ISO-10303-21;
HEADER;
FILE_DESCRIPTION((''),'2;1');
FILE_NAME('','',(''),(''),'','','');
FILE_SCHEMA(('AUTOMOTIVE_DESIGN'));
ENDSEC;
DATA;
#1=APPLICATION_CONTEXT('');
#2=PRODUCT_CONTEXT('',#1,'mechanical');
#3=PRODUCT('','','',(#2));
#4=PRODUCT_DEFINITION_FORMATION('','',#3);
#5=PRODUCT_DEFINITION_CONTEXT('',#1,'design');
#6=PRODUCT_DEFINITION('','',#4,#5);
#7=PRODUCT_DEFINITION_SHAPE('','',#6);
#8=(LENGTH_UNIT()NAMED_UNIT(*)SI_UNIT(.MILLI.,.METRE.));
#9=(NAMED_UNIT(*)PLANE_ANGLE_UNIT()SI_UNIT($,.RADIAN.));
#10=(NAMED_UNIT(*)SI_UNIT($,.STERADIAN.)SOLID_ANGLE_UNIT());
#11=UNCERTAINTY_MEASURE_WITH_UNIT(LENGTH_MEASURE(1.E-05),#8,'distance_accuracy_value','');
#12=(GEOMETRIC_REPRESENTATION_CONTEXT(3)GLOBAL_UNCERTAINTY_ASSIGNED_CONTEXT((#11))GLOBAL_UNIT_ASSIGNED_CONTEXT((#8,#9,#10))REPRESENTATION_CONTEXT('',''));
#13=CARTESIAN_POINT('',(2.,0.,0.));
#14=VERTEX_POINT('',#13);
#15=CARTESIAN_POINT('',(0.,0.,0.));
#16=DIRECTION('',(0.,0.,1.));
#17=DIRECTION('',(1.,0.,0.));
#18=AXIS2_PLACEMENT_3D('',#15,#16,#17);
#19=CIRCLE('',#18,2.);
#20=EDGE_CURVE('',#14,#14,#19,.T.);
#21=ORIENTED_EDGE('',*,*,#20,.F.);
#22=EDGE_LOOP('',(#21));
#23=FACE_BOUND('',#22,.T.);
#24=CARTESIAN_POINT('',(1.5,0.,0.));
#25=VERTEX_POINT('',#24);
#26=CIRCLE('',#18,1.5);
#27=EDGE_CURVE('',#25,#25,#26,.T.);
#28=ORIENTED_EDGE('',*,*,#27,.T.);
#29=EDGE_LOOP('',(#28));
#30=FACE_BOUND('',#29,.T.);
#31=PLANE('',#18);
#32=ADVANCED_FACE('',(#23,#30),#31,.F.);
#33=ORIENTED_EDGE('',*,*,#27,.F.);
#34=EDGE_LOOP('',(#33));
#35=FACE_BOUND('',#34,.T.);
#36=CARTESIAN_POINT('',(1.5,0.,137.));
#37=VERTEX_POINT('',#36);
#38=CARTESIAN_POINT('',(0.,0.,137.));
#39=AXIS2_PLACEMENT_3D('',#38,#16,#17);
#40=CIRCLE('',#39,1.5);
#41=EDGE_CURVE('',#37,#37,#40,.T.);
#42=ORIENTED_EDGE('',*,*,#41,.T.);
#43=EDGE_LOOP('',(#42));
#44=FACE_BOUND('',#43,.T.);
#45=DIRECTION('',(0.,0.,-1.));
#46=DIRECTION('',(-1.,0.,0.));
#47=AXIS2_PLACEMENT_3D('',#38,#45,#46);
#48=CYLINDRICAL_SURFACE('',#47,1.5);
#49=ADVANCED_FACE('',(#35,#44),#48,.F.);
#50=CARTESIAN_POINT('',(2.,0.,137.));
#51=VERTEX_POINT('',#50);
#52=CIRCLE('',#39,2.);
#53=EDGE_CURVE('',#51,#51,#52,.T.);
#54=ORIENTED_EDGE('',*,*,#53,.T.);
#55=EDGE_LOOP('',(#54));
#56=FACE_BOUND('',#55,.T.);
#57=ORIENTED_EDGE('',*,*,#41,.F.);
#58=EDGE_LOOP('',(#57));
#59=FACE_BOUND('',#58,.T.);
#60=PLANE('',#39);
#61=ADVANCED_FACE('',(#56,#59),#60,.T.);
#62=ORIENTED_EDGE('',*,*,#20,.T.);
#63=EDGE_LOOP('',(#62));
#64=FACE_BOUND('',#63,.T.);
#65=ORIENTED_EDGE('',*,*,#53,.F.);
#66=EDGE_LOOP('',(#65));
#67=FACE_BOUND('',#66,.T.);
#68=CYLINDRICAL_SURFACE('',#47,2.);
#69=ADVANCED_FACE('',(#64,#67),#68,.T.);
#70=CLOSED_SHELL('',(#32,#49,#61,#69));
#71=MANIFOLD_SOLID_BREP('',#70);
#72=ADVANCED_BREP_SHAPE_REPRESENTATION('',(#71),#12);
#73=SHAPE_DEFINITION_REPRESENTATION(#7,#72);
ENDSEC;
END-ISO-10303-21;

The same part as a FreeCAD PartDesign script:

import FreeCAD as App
import Part
import Sketcher

doc = App.newDocument("Part")
body = doc.addObject("PartDesign::Body", "Body")

# Sketch on XY plane
sketch1 = body.newObject("Sketcher::SketchObject", "Sketch")
sketch1.AttachmentSupport = (doc.getObject("XY_Plane"), [""])
sketch1.MapMode = "FlatFace"
sketch1.addGeometry([
    Part.Circle(App.Vector(0, 0, 0), App.Vector(0, 0, 1), 2),
    Part.Circle(App.Vector(0, 0, 0), App.Vector(0, 0, 1), 1.5),
], False)
sketch1.addConstraint([
    Sketcher.Constraint("Coincident", 0, 3, -1, 1),
    Sketcher.Constraint("Coincident", 1, 3, -1, 1),
    Sketcher.Constraint("Diameter", 0, 4.0),
    Sketcher.Constraint("Diameter", 1, 3.0),
])
pad1 = body.newObject("PartDesign::Pad", "Pad")
pad1.Profile = sketch1
pad1.Length = 137

doc.recompute()
